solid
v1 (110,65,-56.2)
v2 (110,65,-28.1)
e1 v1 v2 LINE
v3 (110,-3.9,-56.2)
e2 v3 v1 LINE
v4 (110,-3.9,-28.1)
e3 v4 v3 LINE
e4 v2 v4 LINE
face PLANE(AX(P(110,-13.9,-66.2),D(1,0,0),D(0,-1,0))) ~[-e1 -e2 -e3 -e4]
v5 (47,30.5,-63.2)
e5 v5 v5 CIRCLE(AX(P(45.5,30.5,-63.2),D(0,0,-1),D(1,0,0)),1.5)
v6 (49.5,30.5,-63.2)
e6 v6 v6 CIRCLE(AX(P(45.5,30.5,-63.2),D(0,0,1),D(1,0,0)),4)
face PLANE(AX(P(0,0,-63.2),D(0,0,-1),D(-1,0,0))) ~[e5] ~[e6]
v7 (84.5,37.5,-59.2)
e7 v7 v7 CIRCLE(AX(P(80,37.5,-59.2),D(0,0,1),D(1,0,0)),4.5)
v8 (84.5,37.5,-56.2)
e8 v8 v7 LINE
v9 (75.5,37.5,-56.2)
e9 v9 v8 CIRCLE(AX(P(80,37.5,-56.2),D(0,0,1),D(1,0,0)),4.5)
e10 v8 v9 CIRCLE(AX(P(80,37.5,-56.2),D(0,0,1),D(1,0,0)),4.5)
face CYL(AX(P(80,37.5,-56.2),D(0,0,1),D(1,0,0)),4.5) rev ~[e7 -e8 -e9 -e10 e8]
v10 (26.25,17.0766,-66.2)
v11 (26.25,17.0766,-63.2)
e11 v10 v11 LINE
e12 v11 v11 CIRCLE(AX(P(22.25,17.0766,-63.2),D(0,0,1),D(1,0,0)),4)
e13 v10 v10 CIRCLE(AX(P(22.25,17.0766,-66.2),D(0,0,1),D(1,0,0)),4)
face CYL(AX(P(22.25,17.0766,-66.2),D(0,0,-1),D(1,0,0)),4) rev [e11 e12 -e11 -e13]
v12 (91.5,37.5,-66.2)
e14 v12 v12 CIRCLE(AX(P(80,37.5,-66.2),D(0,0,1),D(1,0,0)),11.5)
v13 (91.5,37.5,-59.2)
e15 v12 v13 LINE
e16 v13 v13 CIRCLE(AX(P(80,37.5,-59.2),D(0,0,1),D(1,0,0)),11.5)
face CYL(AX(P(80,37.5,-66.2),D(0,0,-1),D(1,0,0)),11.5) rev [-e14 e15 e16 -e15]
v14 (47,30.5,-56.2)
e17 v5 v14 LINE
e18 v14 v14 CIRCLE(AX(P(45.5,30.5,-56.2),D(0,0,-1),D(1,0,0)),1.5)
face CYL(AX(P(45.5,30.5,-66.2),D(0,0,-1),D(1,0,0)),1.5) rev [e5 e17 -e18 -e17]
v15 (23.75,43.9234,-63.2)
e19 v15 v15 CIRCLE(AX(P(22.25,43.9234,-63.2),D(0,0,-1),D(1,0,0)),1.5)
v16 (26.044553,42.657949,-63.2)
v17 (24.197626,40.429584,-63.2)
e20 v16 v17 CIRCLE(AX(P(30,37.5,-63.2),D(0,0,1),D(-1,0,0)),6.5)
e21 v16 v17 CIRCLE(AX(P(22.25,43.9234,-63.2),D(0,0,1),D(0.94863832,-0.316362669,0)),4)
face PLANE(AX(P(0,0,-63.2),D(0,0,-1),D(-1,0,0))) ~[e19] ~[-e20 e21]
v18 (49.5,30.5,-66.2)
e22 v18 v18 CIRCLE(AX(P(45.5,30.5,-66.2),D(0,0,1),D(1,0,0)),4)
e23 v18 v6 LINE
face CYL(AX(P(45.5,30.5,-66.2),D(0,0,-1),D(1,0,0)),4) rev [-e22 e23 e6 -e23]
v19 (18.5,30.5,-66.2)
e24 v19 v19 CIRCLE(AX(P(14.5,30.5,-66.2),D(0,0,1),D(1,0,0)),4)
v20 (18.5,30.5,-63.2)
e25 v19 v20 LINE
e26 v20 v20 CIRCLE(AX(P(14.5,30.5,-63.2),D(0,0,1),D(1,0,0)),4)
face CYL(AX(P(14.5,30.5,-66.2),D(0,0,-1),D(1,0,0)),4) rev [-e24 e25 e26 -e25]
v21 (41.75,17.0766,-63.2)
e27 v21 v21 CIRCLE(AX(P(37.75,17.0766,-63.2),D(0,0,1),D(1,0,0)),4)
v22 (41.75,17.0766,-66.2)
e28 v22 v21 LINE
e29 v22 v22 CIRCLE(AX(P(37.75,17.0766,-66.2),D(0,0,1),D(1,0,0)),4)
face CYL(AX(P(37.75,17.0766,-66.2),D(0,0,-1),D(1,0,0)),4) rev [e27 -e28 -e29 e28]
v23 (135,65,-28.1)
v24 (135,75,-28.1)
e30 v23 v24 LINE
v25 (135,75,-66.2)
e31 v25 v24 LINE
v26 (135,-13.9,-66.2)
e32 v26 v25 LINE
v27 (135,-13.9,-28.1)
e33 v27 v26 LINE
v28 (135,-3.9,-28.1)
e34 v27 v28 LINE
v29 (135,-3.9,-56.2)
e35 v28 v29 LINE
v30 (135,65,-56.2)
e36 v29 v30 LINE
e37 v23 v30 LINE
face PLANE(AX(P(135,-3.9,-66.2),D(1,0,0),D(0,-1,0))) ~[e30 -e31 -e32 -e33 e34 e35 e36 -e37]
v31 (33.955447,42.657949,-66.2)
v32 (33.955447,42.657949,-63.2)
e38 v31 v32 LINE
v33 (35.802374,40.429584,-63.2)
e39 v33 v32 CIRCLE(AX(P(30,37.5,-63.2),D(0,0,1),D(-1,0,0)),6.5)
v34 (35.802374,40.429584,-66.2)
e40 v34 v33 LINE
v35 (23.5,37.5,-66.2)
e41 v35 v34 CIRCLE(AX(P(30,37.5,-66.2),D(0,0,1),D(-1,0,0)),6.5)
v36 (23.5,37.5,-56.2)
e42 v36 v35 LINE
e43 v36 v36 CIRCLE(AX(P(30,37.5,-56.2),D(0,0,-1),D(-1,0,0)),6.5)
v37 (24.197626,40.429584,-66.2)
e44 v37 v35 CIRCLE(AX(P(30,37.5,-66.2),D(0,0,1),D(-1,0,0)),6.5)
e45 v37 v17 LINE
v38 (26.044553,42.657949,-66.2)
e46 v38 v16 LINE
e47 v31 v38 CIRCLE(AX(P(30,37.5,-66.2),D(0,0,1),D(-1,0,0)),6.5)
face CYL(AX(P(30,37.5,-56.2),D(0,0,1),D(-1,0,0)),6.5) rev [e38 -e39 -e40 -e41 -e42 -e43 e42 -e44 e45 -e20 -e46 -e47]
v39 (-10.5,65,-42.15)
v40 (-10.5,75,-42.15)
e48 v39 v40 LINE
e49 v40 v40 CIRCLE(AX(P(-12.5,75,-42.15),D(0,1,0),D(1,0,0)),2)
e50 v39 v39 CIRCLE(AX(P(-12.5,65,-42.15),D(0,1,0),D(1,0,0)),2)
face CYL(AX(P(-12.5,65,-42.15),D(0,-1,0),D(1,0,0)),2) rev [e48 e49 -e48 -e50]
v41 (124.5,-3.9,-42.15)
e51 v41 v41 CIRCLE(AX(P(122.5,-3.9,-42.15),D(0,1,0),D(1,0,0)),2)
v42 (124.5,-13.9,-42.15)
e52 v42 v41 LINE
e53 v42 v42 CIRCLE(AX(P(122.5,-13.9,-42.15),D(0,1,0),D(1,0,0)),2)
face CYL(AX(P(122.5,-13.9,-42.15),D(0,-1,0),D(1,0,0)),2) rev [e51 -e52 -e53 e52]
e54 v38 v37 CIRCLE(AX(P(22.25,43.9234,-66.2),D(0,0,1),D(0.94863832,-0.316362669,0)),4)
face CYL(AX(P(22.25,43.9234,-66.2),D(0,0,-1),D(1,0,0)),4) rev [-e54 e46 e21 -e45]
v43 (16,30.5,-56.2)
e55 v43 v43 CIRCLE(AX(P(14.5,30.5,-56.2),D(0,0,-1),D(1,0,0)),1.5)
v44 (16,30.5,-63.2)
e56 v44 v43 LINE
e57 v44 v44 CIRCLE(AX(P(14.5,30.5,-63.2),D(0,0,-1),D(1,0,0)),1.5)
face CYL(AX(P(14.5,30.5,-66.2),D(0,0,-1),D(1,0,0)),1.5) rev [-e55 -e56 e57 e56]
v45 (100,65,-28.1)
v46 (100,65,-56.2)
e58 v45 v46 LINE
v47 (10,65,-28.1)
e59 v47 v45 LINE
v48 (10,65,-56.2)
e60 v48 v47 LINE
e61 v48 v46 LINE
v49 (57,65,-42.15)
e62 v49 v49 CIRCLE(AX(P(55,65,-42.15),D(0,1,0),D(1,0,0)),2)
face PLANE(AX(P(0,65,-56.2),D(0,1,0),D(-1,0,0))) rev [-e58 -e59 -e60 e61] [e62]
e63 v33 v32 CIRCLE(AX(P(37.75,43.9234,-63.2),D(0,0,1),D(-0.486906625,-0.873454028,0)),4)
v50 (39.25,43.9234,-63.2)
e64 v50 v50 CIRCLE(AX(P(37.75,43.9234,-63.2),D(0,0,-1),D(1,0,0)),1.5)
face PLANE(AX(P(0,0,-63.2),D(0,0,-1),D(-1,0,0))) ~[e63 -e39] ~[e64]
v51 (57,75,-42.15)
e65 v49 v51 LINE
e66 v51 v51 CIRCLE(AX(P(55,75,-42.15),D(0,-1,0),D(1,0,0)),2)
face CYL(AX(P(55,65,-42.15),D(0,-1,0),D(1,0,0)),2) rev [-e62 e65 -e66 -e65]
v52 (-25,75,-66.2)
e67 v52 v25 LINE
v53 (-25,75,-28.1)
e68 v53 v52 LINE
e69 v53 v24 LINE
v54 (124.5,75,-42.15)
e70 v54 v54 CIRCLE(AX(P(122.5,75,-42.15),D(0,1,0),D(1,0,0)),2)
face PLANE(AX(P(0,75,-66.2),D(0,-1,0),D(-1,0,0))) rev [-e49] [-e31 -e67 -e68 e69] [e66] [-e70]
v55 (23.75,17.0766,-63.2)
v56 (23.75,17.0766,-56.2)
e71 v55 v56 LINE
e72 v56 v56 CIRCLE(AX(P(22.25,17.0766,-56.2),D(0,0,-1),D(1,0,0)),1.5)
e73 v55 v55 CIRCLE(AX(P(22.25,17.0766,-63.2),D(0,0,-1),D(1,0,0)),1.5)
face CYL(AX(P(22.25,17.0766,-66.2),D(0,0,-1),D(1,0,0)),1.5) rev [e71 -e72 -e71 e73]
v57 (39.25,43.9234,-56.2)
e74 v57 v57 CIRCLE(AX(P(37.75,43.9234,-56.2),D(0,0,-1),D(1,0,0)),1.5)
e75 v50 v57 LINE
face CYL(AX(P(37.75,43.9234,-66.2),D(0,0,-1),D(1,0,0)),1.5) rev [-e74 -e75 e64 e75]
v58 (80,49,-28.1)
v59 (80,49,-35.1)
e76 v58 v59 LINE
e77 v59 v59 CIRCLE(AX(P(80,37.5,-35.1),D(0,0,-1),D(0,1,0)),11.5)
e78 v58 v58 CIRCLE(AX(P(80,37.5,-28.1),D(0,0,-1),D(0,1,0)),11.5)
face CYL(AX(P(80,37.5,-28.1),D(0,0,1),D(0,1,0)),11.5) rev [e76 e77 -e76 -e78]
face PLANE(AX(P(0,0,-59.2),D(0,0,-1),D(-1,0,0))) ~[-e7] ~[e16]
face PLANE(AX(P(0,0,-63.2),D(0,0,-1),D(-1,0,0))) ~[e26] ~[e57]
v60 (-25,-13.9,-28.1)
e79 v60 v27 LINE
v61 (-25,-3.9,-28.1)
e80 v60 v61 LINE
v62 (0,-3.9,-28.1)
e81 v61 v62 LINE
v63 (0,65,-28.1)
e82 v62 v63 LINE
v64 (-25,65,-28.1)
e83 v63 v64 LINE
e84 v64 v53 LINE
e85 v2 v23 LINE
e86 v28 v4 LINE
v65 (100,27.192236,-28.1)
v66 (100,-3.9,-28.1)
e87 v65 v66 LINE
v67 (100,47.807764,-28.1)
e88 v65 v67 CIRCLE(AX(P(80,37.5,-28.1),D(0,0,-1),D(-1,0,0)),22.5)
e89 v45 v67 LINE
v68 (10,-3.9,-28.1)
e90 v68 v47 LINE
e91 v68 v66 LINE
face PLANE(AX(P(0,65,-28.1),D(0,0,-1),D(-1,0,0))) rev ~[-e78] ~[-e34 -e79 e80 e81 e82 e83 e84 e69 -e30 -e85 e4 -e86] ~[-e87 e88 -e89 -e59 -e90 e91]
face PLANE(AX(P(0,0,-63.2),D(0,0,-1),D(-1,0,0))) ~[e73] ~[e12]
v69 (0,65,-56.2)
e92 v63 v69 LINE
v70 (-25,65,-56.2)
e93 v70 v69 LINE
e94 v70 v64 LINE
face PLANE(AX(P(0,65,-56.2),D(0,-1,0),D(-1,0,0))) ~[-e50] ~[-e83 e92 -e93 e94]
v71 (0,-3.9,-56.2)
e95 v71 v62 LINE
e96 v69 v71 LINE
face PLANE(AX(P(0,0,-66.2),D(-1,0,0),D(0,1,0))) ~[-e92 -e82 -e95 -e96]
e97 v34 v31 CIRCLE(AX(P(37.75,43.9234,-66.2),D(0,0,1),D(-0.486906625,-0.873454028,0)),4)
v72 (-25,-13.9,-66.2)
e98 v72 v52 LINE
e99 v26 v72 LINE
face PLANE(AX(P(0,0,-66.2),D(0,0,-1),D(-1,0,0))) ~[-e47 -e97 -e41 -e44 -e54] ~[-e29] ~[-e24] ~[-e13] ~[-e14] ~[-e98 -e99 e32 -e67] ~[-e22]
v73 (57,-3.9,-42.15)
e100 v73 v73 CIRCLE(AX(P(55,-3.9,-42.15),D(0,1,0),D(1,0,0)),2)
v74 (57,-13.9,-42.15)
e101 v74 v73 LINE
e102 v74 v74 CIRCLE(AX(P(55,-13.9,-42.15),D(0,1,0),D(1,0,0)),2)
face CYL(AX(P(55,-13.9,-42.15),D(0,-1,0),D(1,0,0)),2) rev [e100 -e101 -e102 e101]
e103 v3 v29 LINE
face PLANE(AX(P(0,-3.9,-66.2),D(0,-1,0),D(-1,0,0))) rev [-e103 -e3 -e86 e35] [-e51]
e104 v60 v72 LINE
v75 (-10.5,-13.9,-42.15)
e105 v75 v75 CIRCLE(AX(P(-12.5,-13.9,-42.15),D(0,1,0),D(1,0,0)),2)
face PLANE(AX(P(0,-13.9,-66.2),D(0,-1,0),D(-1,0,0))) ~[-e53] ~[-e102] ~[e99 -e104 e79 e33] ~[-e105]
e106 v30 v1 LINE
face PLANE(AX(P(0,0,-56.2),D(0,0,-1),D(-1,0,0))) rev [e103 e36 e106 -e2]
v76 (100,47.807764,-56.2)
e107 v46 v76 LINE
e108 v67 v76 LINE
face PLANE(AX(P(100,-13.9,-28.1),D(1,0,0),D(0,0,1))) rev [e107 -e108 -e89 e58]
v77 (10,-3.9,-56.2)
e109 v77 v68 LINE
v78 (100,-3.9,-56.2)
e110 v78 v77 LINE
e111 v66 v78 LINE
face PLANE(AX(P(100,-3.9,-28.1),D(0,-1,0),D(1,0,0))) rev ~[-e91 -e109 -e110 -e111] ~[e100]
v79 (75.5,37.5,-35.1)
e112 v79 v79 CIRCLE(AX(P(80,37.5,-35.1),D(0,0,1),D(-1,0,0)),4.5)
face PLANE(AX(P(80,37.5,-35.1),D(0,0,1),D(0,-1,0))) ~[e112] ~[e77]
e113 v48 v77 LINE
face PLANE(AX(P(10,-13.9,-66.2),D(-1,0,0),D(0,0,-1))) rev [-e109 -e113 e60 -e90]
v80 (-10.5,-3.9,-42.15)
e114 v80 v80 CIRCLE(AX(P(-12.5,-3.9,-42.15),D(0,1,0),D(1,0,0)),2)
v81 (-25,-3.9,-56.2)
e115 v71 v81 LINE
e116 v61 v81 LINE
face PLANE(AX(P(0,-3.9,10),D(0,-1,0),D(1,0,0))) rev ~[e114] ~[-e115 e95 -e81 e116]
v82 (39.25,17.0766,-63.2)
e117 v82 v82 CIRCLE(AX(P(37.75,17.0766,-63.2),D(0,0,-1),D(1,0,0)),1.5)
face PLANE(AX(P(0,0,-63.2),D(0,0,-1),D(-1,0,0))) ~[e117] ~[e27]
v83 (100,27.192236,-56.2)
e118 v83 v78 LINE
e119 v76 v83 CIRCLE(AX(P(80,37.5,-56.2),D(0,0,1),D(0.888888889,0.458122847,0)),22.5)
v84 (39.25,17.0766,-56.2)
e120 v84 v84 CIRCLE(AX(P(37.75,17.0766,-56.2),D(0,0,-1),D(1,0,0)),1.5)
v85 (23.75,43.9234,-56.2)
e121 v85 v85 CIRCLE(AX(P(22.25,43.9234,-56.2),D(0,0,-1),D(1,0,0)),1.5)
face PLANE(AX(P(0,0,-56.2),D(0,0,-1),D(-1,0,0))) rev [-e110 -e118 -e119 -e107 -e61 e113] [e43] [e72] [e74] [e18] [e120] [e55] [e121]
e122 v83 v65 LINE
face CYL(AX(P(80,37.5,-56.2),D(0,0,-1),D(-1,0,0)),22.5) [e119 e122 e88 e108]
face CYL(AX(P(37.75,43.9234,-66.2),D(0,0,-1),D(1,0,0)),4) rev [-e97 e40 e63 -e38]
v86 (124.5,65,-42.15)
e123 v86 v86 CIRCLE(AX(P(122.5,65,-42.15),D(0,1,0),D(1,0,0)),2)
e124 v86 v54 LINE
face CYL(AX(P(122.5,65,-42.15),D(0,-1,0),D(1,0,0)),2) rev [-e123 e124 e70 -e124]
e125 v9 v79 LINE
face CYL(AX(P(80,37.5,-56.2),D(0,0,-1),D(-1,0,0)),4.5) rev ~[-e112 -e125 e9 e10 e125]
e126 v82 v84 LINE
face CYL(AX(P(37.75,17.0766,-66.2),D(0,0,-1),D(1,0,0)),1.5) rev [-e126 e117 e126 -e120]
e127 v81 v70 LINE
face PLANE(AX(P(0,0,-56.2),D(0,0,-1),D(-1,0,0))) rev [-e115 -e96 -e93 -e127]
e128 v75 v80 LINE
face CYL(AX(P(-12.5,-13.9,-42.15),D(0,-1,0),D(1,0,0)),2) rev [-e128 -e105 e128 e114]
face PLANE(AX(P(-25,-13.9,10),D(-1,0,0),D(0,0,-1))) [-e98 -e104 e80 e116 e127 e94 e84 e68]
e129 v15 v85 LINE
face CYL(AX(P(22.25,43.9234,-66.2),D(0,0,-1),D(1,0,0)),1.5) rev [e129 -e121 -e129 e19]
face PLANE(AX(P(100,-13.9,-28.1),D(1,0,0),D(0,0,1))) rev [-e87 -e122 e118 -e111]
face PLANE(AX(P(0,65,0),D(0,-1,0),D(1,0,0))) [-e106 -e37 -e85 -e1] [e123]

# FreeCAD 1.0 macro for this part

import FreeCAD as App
import Part
import Sketcher

V = App.Vector

doc = App.newDocument("Part")
params = doc.addObject("Spreadsheet::Sheet", "Params")
for row, (alias, value) in enumerate([
    ("sketch1_diameter", "8 mm"),
    ("sketch1_diameter2", "9 mm"),
    ("sketch1_width", "110 mm"),
    ("sketch1_height", "75 mm"),
    ("pad1_length", "10 mm"),
    ("sketch2_height", "38.1 mm"),
    ("sketch2_width", "110 mm"),
    ("pad2_length", "10 mm"),
    ("sketch3_width", "65 mm"),
    ("sketch3_height", "28.1 mm"),
    ("pad3_length", "10 mm"),
    ("sketch4_width", "65 mm"),
    ("sketch4_height", "28.1 mm"),
    ("pad4_length", "10 mm"),
    ("sketch5_diameter", "4 mm"),
    ("sketch5_width", "25 mm"),
    ("sketch5_height", "28.1 mm"),
    ("pad5_length", "10 mm"),
    ("sketch6_width", "25 mm"),
    ("sketch6_height", "10 mm"),
    ("pad6_length", "10 mm"),
    ("sketch7_diameter", "4 mm"),
    ("sketch8_diameter", "3 mm"),
    ("sketch9_diameter", "13 mm"),
    ("sketch9_diameter2", "8 mm"),
    ("sketch10_diameter", "8 mm"),
    ("pocket4_length", "3 mm"),
    ("sketch11_width", "110 mm"),
    ("sketch11_height", "13.9 mm"),
    ("pad7_length", "10 mm"),
    ("sketch12_width", "10 mm"),
    ("sketch12_height", "38.1 mm"),
    ("pad8_length", "88.9 mm"),
    ("sketch13_width", "110 mm"),
    ("sketch13_height", "38.1 mm"),
    ("pad9_length", "10 mm"),
    ("sketch14_diameter", "4 mm"),
    ("sketch14_width", "25 mm"),
    ("sketch14_height", "38.1 mm"),
    ("pad10_length", "10 mm"),
    ("sketch15_diameter", "4 mm"),
    ("pocket5_length", "10 mm"),
    ("sketch16_width", "25 mm"),
    ("sketch16_height", "68.9 mm"),
    ("pad11_length", "10 mm"),
    ("sketch17_diameter", "45 mm"),
    ("sketch17_diameter2", "9 mm"),
    ("pad12_length", "28.1 mm"),
    ("sketch18_diameter", "23 mm"),
    ("sketch18_diameter2", "9 mm"),
    ("pocket6_length", "7 mm"),
    ("sketch19_diameter", "23 mm"),
    ("sketch19_diameter2", "9 mm"),
    ("pocket7_length", "7 mm"),
    ("sketch20_width", "160 mm"),
    ("sketch20_height", "88.9 mm"),
], start=1):
    params.set(f"A{row}", alias)
    params.set(f"B{row}", "=" + value)
    params.setAlias(f"B{row}", alias)

body = doc.addObject("PartDesign::Body", "Body")

sketch1 = body.newObject("Sketcher::SketchObject", "Sketch")
sketch1.AttachmentSupport = (doc.getObject("XY_Plane"), [""])
sketch1.MapMode = "FlatFace"
sketch1.addGeometry([
    Part.LineSegment(V(0, 75, 0), V(0, 0, 0)),
    Part.LineSegment(V(0, 0, 0), V(110, 0, 0)),
    Part.LineSegment(V(110, 0, 0), V(110, 75, 0)),
    Part.LineSegment(V(110, 75, 0), V(0, 75, 0)),
    Part.Circle(V(30, 37.5, 0), V(0, 0, 1), 4),
    Part.Circle(V(80, 37.5, 0), V(0, 0, 1), 4.5),
], False)
sketch1.addConstraint([
    Sketcher.Constraint("Coincident", 0, 2, 1, 1),
    Sketcher.Constraint("Coincident", 1, 2, 2, 1),
    Sketcher.Constraint("Coincident", 2, 2, 3, 1),
    Sketcher.Constraint("Coincident", 3, 2, 0, 1),
    Sketcher.Constraint("Vertical", 0),
    Sketcher.Constraint("Horizontal", 1),
    Sketcher.Constraint("Vertical", 2),
    Sketcher.Constraint("Horizontal", 3),
    Sketcher.Constraint("Coincident", 0, 2, -1, 1),
    Sketcher.Constraint("Horizontal", 4, 3, 5, 3),
    Sketcher.Constraint("Diameter", 4, 8.0),
    Sketcher.Constraint("Diameter", 5, 9.0),
    Sketcher.Constraint("DistanceX", 1, 1, 1, 2, 110.0),
    Sketcher.Constraint("DistanceY", 0, 2, 0, 1, 75.0),
    Sketcher.Constraint("DistanceX", -1, 1, 4, 3, 30.0),
    Sketcher.Constraint("DistanceX", 4, 3, 5, 3, 50.0),
    Sketcher.Constraint("DistanceY", -1, 1, 4, 3, 37.5),
])
sketch1.setExpression("Constraints[10]", "Params.sketch1_diameter")
sketch1.setExpression("Constraints[11]", "Params.sketch1_diameter2")
sketch1.setExpression("Constraints[12]", "Params.sketch1_width")
sketch1.setExpression("Constraints[13]", "Params.sketch1_height")
pad1 = body.newObject("PartDesign::Pad", "Pad")
pad1.Profile = sketch1
pad1.setExpression("Length", "Params.pad1_length")

sketch2 = body.newObject("Sketcher::SketchObject", "Sketch001")
sketch2.AttachmentSupport = (doc.getObject("XZ_Plane"), [""])
sketch2.MapMode = "FlatFace"
sketch2.AttachmentOffset = App.Placement(V(0, 0, -75), App.Rotation())
sketch2.addGeometry([
    Part.LineSegment(V(0, 10, 0), V(110, 10, 0)),
    Part.LineSegment(V(110, 10, 0), V(110, -28.1, 0)),
    Part.LineSegment(V(110, -28.1, 0), V(0, -28.1, 0)),
    Part.LineSegment(V(0, -28.1, 0), V(0, 10, 0)),
], False)
sketch2.addConstraint([
    Sketcher.Constraint("Coincident", 0, 2, 1, 1),
    Sketcher.Constraint("Coincident", 1, 2, 2, 1),
    Sketcher.Constraint("Coincident", 2, 2, 3, 1),
    Sketcher.Constraint("Coincident", 3, 2, 0, 1),
    Sketcher.Constraint("Horizontal", 0),
    Sketcher.Constraint("Vertical", 1),
    Sketcher.Constraint("Horizontal", 2),
    Sketcher.Constraint("Vertical", 3),
    Sketcher.Constraint("PointOnObject", 2, 2, -2),
    Sketcher.Constraint("DistanceY", 1, 2, 1, 1, 38.1),
    Sketcher.Constraint("DistanceX", 0, 1, 0, 2, 110.0),
    Sketcher.Constraint("DistanceY", -1, 1, 0, 2, 10.0),
])
sketch2.setExpression("Constraints[9]", "Params.sketch2_height")
sketch2.setExpression("Constraints[10]", "Params.sketch2_width")
pad2 = body.newObject("PartDesign::Pad", "Pad001")
pad2.Profile = sketch2
pad2.setExpression("Length", "Params.pad2_length")

sketch3 = body.newObject("Sketcher::SketchObject", "Sketch002")
sketch3.AttachmentSupport = (doc.getObject("YZ_Plane"), [""])
sketch3.MapMode = "FlatFace"
sketch3.AttachmentOffset = App.Placement(V(0, 0, 110), App.Rotation())
sketch3.addGeometry([
    Part.LineSegment(V(0, 0, 0), V(65, -28.1, 0)),
    Part.LineSegment(V(65, -28.1, 0), V(65, 0, 0)),
    Part.LineSegment(V(65, 0, 0), V(0, 0, 0)),
], False)
sketch3.addConstraint([
    Sketcher.Constraint("Coincident", 0, 2, 1, 1),
    Sketcher.Constraint("Coincident", 1, 2, 2, 1),
    Sketcher.Constraint("Coincident", 2, 2, 0, 1),
    Sketcher.Constraint("Vertical", 1),
    Sketcher.Constraint("Horizontal", 2),
    Sketcher.Constraint("Coincident", 2, 2, -1, 1),
    Sketcher.Constraint("DistanceX", 2, 2, 2, 1, 65.0),
    Sketcher.Constraint("DistanceY", 1, 1, 1, 2, 28.1),
])
sketch3.setExpression("Constraints[6]", "Params.sketch3_width")
sketch3.setExpression("Constraints[7]", "Params.sketch3_height")
pad3 = body.newObject("PartDesign::Pad", "Pad002")
pad3.Profile = sketch3
pad3.setExpression("Length", "Params.pad3_length")
pad3.Reversed = True

sketch4 = body.newObject("Sketcher::SketchObject", "Sketch003")
sketch4.AttachmentSupport = (doc.getObject("YZ_Plane"), [""])
sketch4.MapMode = "FlatFace"
sketch4.addGeometry([
    Part.LineSegment(V(0, 0, 0), V(65, 0, 0)),
    Part.LineSegment(V(65, 0, 0), V(65, -28.1, 0)),
    Part.LineSegment(V(65, -28.1, 0), V(0, 0, 0)),
], False)
sketch4.addConstraint([
    Sketcher.Constraint("Coincident", 0, 2, 1, 1),
    Sketcher.Constraint("Coincident", 1, 2, 2, 1),
    Sketcher.Constraint("Coincident", 2, 2, 0, 1),
    Sketcher.Constraint("Horizontal", 0),
    Sketcher.Constraint("Vertical", 1),
    Sketcher.Constraint("Coincident", 2, 2, -1, 1),
    Sketcher.Constraint("DistanceX", 0, 1, 0, 2, 65.0),
    Sketcher.Constraint("DistanceY", 1, 2, 1, 1, 28.1),
])
sketch4.setExpression("Constraints[6]", "Params.sketch4_width")
sketch4.setExpression("Constraints[7]", "Params.sketch4_height")
pad4 = body.newObject("PartDesign::Pad", "Pad003")
pad4.Profile = sketch4
pad4.setExpression("Length", "Params.pad4_length")

sketch5 = body.newObject("Sketcher::SketchObject", "Sketch004")
sketch5.AttachmentSupport = (doc.getObject("XZ_Plane"), [""])
sketch5.MapMode = "FlatFace"
sketch5.AttachmentOffset = App.Placement(V(0, 0, -65), App.Rotation())
sketch5.addGeometry([
    Part.LineSegment(V(110, 0, 0), V(110, -28.1, 0)),
    Part.LineSegment(V(110, -28.1, 0), V(135, -28.1, 0)),
    Part.LineSegment(V(135, -28.1, 0), V(135, 0, 0)),
    Part.LineSegment(V(135, 0, 0), V(110, 0, 0)),
    Part.Circle(V(122.5, -14.05, 0), V(0, 0, 1), 2),
    Part.LineSegment(V(0, -28.1, 0), V(0, 0, 0)),
    Part.LineSegment(V(0, 0, 0), V(-25, 0, 0)),
    Part.LineSegment(V(-25, 0, 0), V(-25, -28.1, 0)),
    Part.LineSegment(V(-25, -28.1, 0), V(0, -28.1, 0)),
    Part.Circle(V(-12.5, -14.05, 0), V(0, 0, 1), 2),
], False)
sketch5.addConstraint([
    Sketcher.Constraint("Coincident", 0, 2, 1, 1),
    Sketcher.Constraint("Coincident", 1, 2, 2, 1),
    Sketcher.Constraint("Coincident", 2, 2, 3, 1),
    Sketcher.Constraint("Coincident", 3, 2, 0, 1),
    Sketcher.Constraint("Coincident", 5, 2, 6, 1),
    Sketcher.Constraint("Coincident", 6, 2, 7, 1),
    Sketcher.Constraint("Coincident", 7, 2, 8, 1),
    Sketcher.Constraint("Coincident", 8, 2, 5, 1),
    Sketcher.Constraint("Vertical", 0),
    Sketcher.Constraint("Horizontal", 1),
    Sketcher.Constraint("Vertical", 2),
    Sketcher.Constraint("Horizontal", 3),
    Sketcher.Constraint("Vertical", 5),
    Sketcher.Constraint("Horizontal", 6),
    Sketcher.Constraint("Vertical", 7),
    Sketcher.Constraint("Horizontal", 8),
    Sketcher.Constraint("Coincident", 5, 2, -1, 1),
    Sketcher.Constraint("Equal", 4, 9),
    Sketcher.Constraint("PointOnObject", 2, 2, -1),
    Sketcher.Constraint("Horizontal", 4, 3, 9, 3),
    Sketcher.Constraint("Horizontal", 1, 2, 7, 2),
    Sketcher.Constraint("Equal", 3, 6),
    Sketcher.Constraint("Diameter", 4, 4.0),
    Sketcher.Constraint("DistanceX", 1, 1, 1, 2, 25.0),
    Sketcher.Constraint("DistanceY", 0, 2, 0, 1, 28.1),
    Sketcher.Constraint("DistanceX", -1, 1, 0, 2, 110.0),
    Sketcher.Constraint("DistanceX", 9, 3, 4, 3, 135.0),
    Sketcher.Constraint("DistanceX", -1, 1, 4, 3, 122.5),
    Sketcher.Constraint("DistanceY", 4, 3, -1, 1, 14.05),
])
sketch5.setExpression("Constraints[22]", "Params.sketch5_diameter")
sketch5.setExpression("Constraints[23]", "Params.sketch5_width")
sketch5.setExpression("Constraints[24]", "Params.sketch5_height")
pad5 = body.newObject("PartDesign::Pad", "Pad004")
pad5.Profile = sketch5
pad5.setExpression("Length", "Params.pad5_length")
pad5.Reversed = True

sketch6 = body.newObject("Sketcher::SketchObject", "Sketch005")
sketch6.AttachmentSupport = (doc.getObject("XZ_Plane"), [""])
sketch6.MapMode = "FlatFace"
sketch6.AttachmentOffset = App.Placement(V(0, 0, -65), App.Rotation())
sketch6.addGeometry([
    Part.LineSegment(V(110, 10, 0), V(110, 0, 0)),
    Part.LineSegment(V(110, 0, 0), V(135, 0, 0)),
    Part.LineSegment(V(135, 0, 0), V(135, 10, 0)),
    Part.LineSegment(V(135, 10, 0), V(110, 10, 0)),
    Part.LineSegment(V(-25, 0, 0), V(0, 0, 0)),
    Part.LineSegment(V(0, 0, 0), V(0, 10, 0)),
    Part.LineSegment(V(0, 10, 0), V(-25, 10, 0)),
    Part.LineSegment(V(-25, 10, 0), V(-25, 0, 0)),
], False)
sketch6.addConstraint([
    Sketcher.Constraint("Coincident", 0, 2, 1, 1),
    Sketcher.Constraint("Coincident", 1, 2, 2, 1),
    Sketcher.Constraint("Coincident", 2, 2, 3, 1),
    Sketcher.Constraint("Coincident", 3, 2, 0, 1),
    Sketcher.Constraint("Coincident", 4, 2, 5, 1),
    Sketcher.Constraint("Coincident", 5, 2, 6, 1),
    Sketcher.Constraint("Coincident", 6, 2, 7, 1),
    Sketcher.Constraint("Coincident", 7, 2, 4, 1),
    Sketcher.Constraint("Vertical", 0),
    Sketcher.Constraint("Horizontal", 1),
    Sketcher.Constraint("Vertical", 2),
    Sketcher.Constraint("Horizontal", 3),
    Sketcher.Constraint("Horizontal", 4),
    Sketcher.Constraint("Vertical", 5),
    Sketcher.Constraint("Horizontal", 6),
    Sketcher.Constraint("Vertical", 7),
    Sketcher.Constraint("Coincident", 4, 2, -1, 1),
    Sketcher.Constraint("PointOnObject", 0, 2, -1),
    Sketcher.Constraint("Horizontal", 3, 2, 5, 2),
    Sketcher.Constraint("Equal", 3, 4),
    Sketcher.Constraint("DistanceX", 1, 1, 1, 2, 25.0),
    Sketcher.Constraint("DistanceY", 0, 2, 0, 1, 10.0),
    Sketcher.Constraint("DistanceX", -1, 1, 0, 2, 110.0),
])
sketch6.setExpression("Constraints[20]", "Params.sketch6_width")
sketch6.setExpression("Constraints[21]", "Params.sketch6_height")
pad6 = body.newObject("PartDesign::Pad", "Pad005")
pad6.Profile = sketch6
pad6.setExpression("Length", "Params.pad6_length")
pad6.Reversed = True

sketch7 = body.newObject("Sketcher::SketchObject", "Sketch006")
sketch7.AttachmentSupport = (doc.getObject("XZ_Plane"), [""])
sketch7.MapMode = "FlatFace"
sketch7.AttachmentOffset = App.Placement(V(0, 0, -65), App.Rotation())
sketch7.addGeometry(Part.Circle(V(55, -14.05, 0), V(0, 0, 1), 2), False)
sketch7.addConstraint([
    Sketcher.Constraint("Diameter", 0, 4.0),
    Sketcher.Constraint("DistanceX", -1, 1, 0, 3, 55.0),
    Sketcher.Constraint("DistanceY", 0, 3, -1, 1, 14.05),
])
sketch7.setExpression("Constraints[0]", "Params.sketch7_diameter")
pocket1 = body.newObject("PartDesign::Pocket", "Pocket")
pocket1.Profile = sketch7
pocket1.Type = "ThroughAll"

sketch8 = body.newObject("Sketcher::SketchObject", "Sketch007")
sketch8.AttachmentSupport = (doc.getObject("XY_Plane"), [""])
sketch8.MapMode = "FlatFace"
sketch8.AttachmentOffset = App.Placement(V(0, 0, 10), App.Rotation())
sketch8.addGeometry([
    Part.Circle(V(45.5, 30.5, 0), V(0, 0, 1), 1.5),
    Part.Circle(V(37.75, 43.9234, 0), V(0, 0, 1), 1.5),
    Part.Circle(V(22.25, 43.9234, 0), V(0, 0, 1), 1.5),
    Part.Circle(V(14.5, 30.5, 0), V(0, 0, 1), 1.5),
    Part.Circle(V(22.25, 17.0766, 0), V(0, 0, 1), 1.5),
    Part.Circle(V(37.75, 17.0766, 0), V(0, 0, 1), 1.5),
], False)
sketch8.addConstraint([
    Sketcher.Constraint("Equal", 0, 1),
    Sketcher.Constraint("Equal", 1, 2),
    Sketcher.Constraint("Equal", 2, 3),
    Sketcher.Constraint("Equal", 3, 4),
    Sketcher.Constraint("Equal", 4, 5),
    Sketcher.Constraint("Horizontal", 1, 3, 2, 3),
    Sketcher.Constraint("Horizontal", 0, 3, 3, 3),
    Sketcher.Constraint("Horizontal", 4, 3, 5, 3),
    Sketcher.Constraint("Vertical", 2, 3, 4, 3),
    Sketcher.Constraint("Vertical", 1, 3, 5, 3),
    Sketcher.Constraint("Diameter", 0, 3.0),
    Sketcher.Constraint("DistanceX", 2, 3, 1, 3, 15.5),
    Sketcher.Constraint("DistanceX", 3, 3, 0, 3, 31.0),
    Sketcher.Constraint("DistanceX", -1, 1, 0, 3, 45.5),
    Sketcher.Constraint("DistanceY", -1, 1, 0, 3, 30.5),
    Sketcher.Constraint("DistanceX", -1, 1, 1, 3, 37.75),
    Sketcher.Constraint("DistanceY", -1, 1, 1, 3, 43.9234),
    Sketcher.Constraint("DistanceY", -1, 1, 4, 3, 17.0766),
])
sketch8.setExpression("Constraints[10]", "Params.sketch8_diameter")
pocket2 = body.newObject("PartDesign::Pocket", "Pocket001")
pocket2.Profile = sketch8
pocket2.Type = "ThroughAll"

sketch9 = body.newObject("Sketcher::SketchObject", "Sketch008")
sketch9.AttachmentSupport = (doc.getObject("XY_Plane"), [""])
sketch9.MapMode = "FlatFace"
sketch9.addGeometry([
    Part.Circle(V(30, 37.5, 0), V(0, 0, 1), 6.5),
    Part.Circle(V(30, 37.5, 0), V(0, 0, 1), 4),
], False)
sketch9.addConstraint([
    Sketcher.Constraint("Coincident", 1, 3, 0, 3),
    Sketcher.Constraint("Diameter", 0, 13.0),
    Sketcher.Constraint("Diameter", 1, 8.0),
    Sketcher.Constraint("DistanceX", -1, 1, 0, 3, 30.0),
    Sketcher.Constraint("DistanceY", -1, 1, 0, 3, 37.5),
])
sketch9.setExpression("Constraints[1]", "Params.sketch9_diameter")
sketch9.setExpression("Constraints[2]", "Params.sketch9_diameter2")
pocket3 = body.newObject("PartDesign::Pocket", "Pocket002")
pocket3.Profile = sketch9
pocket3.Type = "ThroughAll"
pocket3.Reversed = True

sketch10 = body.newObject("Sketcher::SketchObject", "Sketch009")
sketch10.AttachmentSupport = (doc.getObject("XY_Plane"), [""])
sketch10.MapMode = "FlatFace"
sketch10.AttachmentOffset = App.Placement(V(0, 0, 10), App.Rotation())
sketch10.addGeometry([
    Part.Circle(V(45.5, 30.5, 0), V(0, 0, 1), 4),
    Part.Circle(V(14.5, 30.5, 0), V(0, 0, 1), 4),
    Part.Circle(V(22.25, 43.9234, 0), V(0, 0, 1), 4),
    Part.Circle(V(37.75, 43.9234, 0), V(0, 0, 1), 4),
    Part.Circle(V(37.75, 17.0766, 0), V(0, 0, 1), 4),
    Part.Circle(V(22.25, 17.0766, 0), V(0, 0, 1), 4),
], False)
sketch10.addConstraint([
    Sketcher.Constraint("Equal", 0, 1),
    Sketcher.Constraint("Equal", 1, 2),
    Sketcher.Constraint("Equal", 2, 3),
    Sketcher.Constraint("Equal", 3, 4),
    Sketcher.Constraint("Equal", 4, 5),
    Sketcher.Constraint("Horizontal", 0, 3, 1, 3),
    Sketcher.Constraint("Horizontal", 2, 3, 3, 3),
    Sketcher.Constraint("Horizontal", 4, 3, 5, 3),
    Sketcher.Constraint("Vertical", 3, 3, 4, 3),
    Sketcher.Constraint("Vertical", 2, 3, 5, 3),
    Sketcher.Constraint("Diameter", 0, 8.0),
    Sketcher.Constraint("DistanceX", 1, 3, 0, 3, 31.0),
    Sketcher.Constraint("DistanceX", -1, 1, 0, 3, 45.5),
    Sketcher.Constraint("DistanceY", -1, 1, 0, 3, 30.5),
    Sketcher.Constraint("DistanceX", 2, 3, 3, 3, 15.5),
    Sketcher.Constraint("DistanceX", -1, 1, 2, 3, 22.25),
    Sketcher.Constraint("DistanceY", -1, 1, 2, 3, 43.9234),
    Sketcher.Constraint("DistanceY", -1, 1, 4, 3, 17.0766),
])
sketch10.setExpression("Constraints[10]", "Params.sketch10_diameter")
pocket4 = body.newObject("PartDesign::Pocket", "Pocket003")
pocket4.Profile = sketch10
pocket4.setExpression("Length", "Params.pocket4_length")

sketch11 = body.newObject("Sketcher::SketchObject", "Sketch010")
sketch11.AttachmentSupport = (doc.getObject("XY_Plane"), [""])
sketch11.MapMode = "FlatFace"
sketch11.AttachmentOffset = App.Placement(V(0, 0, 10), App.Rotation())
sketch11.addGeometry([
    Part.LineSegment(V(110, -13.9, 0), V(110, 0, 0)),
    Part.LineSegment(V(110, 0, 0), V(0, 0, 0)),
    Part.LineSegment(V(0, 0, 0), V(0, -13.9, 0)),
    Part.LineSegment(V(0, -13.9, 0), V(110, -13.9, 0)),
], False)
sketch11.addConstraint([
    Sketcher.Constraint("Coincident", 0, 2, 1, 1),
    Sketcher.Constraint("Coincident", 1, 2, 2, 1),
    Sketcher.Constraint("Coincident", 2, 2, 3, 1),
    Sketcher.Constraint("Coincident", 3, 2, 0, 1),
    Sketcher.Constraint("Vertical", 0),
    Sketcher.Constraint("Horizontal", 1),
    Sketcher.Constraint("Vertical", 2),
    Sketcher.Constraint("Horizontal", 3),
    Sketcher.Constraint("Coincident", 1, 2, -1, 1),
    Sketcher.Constraint("DistanceX", 1, 2, 1, 1, 110.0),
    Sketcher.Constraint("DistanceY", 0, 1, 0, 2, 13.9),
])
sketch11.setExpression("Constraints[9]", "Params.sketch11_width")
sketch11.setExpression("Constraints[10]", "Params.sketch11_height")
pad7 = body.newObject("PartDesign::Pad", "Pad006")
pad7.Profile = sketch11
pad7.setExpression("Length", "Params.pad7_length")
pad7.Reversed = True

sketch12 = body.newObject("Sketcher::SketchObject", "Sketch011")
sketch12.AttachmentSupport = (doc.getObject("XZ_Plane"), [""])
sketch12.MapMode = "FlatFace"
sketch12.AttachmentOffset = App.Placement(V(0, 0, 13.9), App.Rotation())
sketch12.addGeometry([
    Part.LineSegment(V(10, 10, 0), V(0, 10, 0)),
    Part.LineSegment(V(0, 10, 0), V(0, -28.1, 0)),
    Part.LineSegment(V(0, -28.1, 0), V(10, -28.1, 0)),
    Part.LineSegment(V(10, -28.1, 0), V(10, 10, 0)),
    Part.LineSegment(V(100, 10, 0), V(100, -28.1, 0)),
    Part.LineSegment(V(100, -28.1, 0), V(110, -28.1, 0)),
    Part.LineSegment(V(110, -28.1, 0), V(110, 10, 0)),
    Part.LineSegment(V(110, 10, 0), V(100, 10, 0)),
], False)
sketch12.addConstraint([
    Sketcher.Constraint("Coincident", 0, 2, 1, 1),
    Sketcher.Constraint("Coincident", 1, 2, 2, 1),
    Sketcher.Constraint("Coincident", 2, 2, 3, 1),
    Sketcher.Constraint("Coincident", 3, 2, 0, 1),
    Sketcher.Constraint("Coincident", 4, 2, 5, 1),
    Sketcher.Constraint("Coincident", 5, 2, 6, 1),
    Sketcher.Constraint("Coincident", 6, 2, 7, 1),
    Sketcher.Constraint("Coincident", 7, 2, 4, 1),
    Sketcher.Constraint("Horizontal", 0),
    Sketcher.Constraint("Vertical", 1),
    Sketcher.Constraint("Horizontal", 2),
    Sketcher.Constraint("Vertical", 3),
    Sketcher.Constraint("Vertical", 4),
    Sketcher.Constraint("Horizontal", 5),
    Sketcher.Constraint("Vertical", 6),
    Sketcher.Constraint("Horizontal", 7),
    Sketcher.Constraint("PointOnObject", 0, 2, -2),
    Sketcher.Constraint("Horizontal", 2, 2, 4, 2),
    Sketcher.Constraint("Horizontal", 3, 2, 6, 2),
    Sketcher.Constraint("Equal", 2, 5),
    Sketcher.Constraint("DistanceX", 0, 2, 0, 1, 10.0),
    Sketcher.Constraint("DistanceY", 1, 2, 1, 1, 38.1),
    Sketcher.Constraint("DistanceY", -1, 1, 0, 2, 10.0),
    Sketcher.Constraint("DistanceX", -1, 1, 4, 2, 100.0),
])
sketch12.setExpression("Constraints[20]", "Params.sketch12_width")
sketch12.setExpression("Constraints[21]", "Params.sketch12_height")
pad8 = body.newObject("PartDesign::Pad", "Pad007")
pad8.Profile = sketch12
pad8.setExpression("Length", "Params.pad8_length")
pad8.Reversed = True

sketch13 = body.newObject("Sketcher::SketchObject", "Sketch012")
sketch13.AttachmentSupport = (doc.getObject("XZ_Plane"), [""])
sketch13.MapMode = "FlatFace"
sketch13.AttachmentOffset = App.Placement(V(0, 0, 13.9), App.Rotation())
sketch13.addGeometry([
    Part.LineSegment(V(0, -28.1, 0), V(110, -28.1, 0)),
    Part.LineSegment(V(110, -28.1, 0), V(110, 10, 0)),
    Part.LineSegment(V(110, 10, 0), V(0, 10, 0)),
    Part.LineSegment(V(0, 10, 0), V(0, -28.1, 0)),
], False)
sketch13.addConstraint([
    Sketcher.Constraint("Coincident", 0, 2, 1, 1),
    Sketcher.Constraint("Coincident", 1, 2, 2, 1),
    Sketcher.Constraint("Coincident", 2, 2, 3, 1),
    Sketcher.Constraint("Coincident", 3, 2, 0, 1),
    Sketcher.Constraint("Horizontal", 0),
    Sketcher.Constraint("Vertical", 1),
    Sketcher.Constraint("Horizontal", 2),
    Sketcher.Constraint("Vertical", 3),
    Sketcher.Constraint("PointOnObject", 2, 2, -2),
    Sketcher.Constraint("DistanceX", 0, 1, 0, 2, 110.0),
    Sketcher.Constraint("DistanceY", 1, 1, 1, 2, 38.1),
    Sketcher.Constraint("DistanceY", -1, 1, 1, 2, 10.0),
])
sketch13.setExpression("Constraints[9]", "Params.sketch13_width")
sketch13.setExpression("Constraints[10]", "Params.sketch13_height")
pad9 = body.newObject("PartDesign::Pad", "Pad008")
pad9.Profile = sketch13
pad9.setExpression("Length", "Params.pad9_length")
pad9.Reversed = True

sketch14 = body.newObject("Sketcher::SketchObject", "Sketch013")
sketch14.AttachmentSupport = (doc.getObject("XZ_Plane"), [""])
sketch14.MapMode = "FlatFace"
sketch14.AttachmentOffset = App.Placement(V(0, 0, 13.9), App.Rotation())
sketch14.addGeometry([
    Part.LineSegment(V(-25, -28.1, 0), V(0, -28.1, 0)),
    Part.LineSegment(V(0, -28.1, 0), V(0, 10, 0)),
    Part.LineSegment(V(0, 10, 0), V(-25, 10, 0)),
    Part.LineSegment(V(-25, 10, 0), V(-25, -28.1, 0)),
    Part.Circle(V(-12.5, -14.05, 0), V(0, 0, 1), 2),
    Part.LineSegment(V(110, 10, 0), V(110, -28.1, 0)),
    Part.LineSegment(V(110, -28.1, 0), V(135, -28.1, 0)),
    Part.LineSegment(V(135, -28.1, 0), V(135, 10, 0)),
    Part.LineSegment(V(135, 10, 0), V(110, 10, 0)),
    Part.Circle(V(122.5, -14.05, 0), V(0, 0, 1), 2),
], False)
sketch14.addConstraint([
    Sketcher.Constraint("Coincident", 0, 2, 1, 1),
    Sketcher.Constraint("Coincident", 1, 2, 2, 1),
    Sketcher.Constraint("Coincident", 2, 2, 3, 1),
    Sketcher.Constraint("Coincident", 3, 2, 0, 1),
    Sketcher.Constraint("Coincident", 5, 2, 6, 1),
    Sketcher.Constraint("Coincident", 6, 2, 7, 1),
    Sketcher.Constraint("Coincident", 7, 2, 8, 1),
    Sketcher.Constraint("Coincident", 8, 2, 5, 1),
    Sketcher.Constraint("Horizontal", 0),
    Sketcher.Constraint("Vertical", 1),
    Sketcher.Constraint("Horizontal", 2),
    Sketcher.Constraint("Vertical", 3),
    Sketcher.Constraint("Vertical", 5),
    Sketcher.Constraint("Horizontal", 6),
    Sketcher.Constraint("Vertical", 7),
    Sketcher.Constraint("Horizontal", 8),
    Sketcher.Constraint("Equal", 4, 9),
    Sketcher.Constraint("PointOnObject", 0, 2, -2),
    Sketcher.Constraint("Horizontal", 4, 3, 9, 3),
    Sketcher.Constraint("Horizontal", 3, 2, 5, 2),
    Sketcher.Constraint("Horizontal", 2, 2, 7, 2),
    Sketcher.Constraint("Equal", 2, 6),
    Sketcher.Constraint("Diameter", 4, 4.0),
    Sketcher.Constraint("DistanceX", 0, 1, 0, 2, 25.0),
    Sketcher.Constraint("DistanceY", 1, 1, 1, 2, 38.1),
    Sketcher.Constraint("DistanceY", -1, 1, 1, 2, 10.0),
    Sketcher.Constraint("DistanceX", -1, 1, 5, 2, 110.0),
    Sketcher.Constraint("DistanceX", 4, 3, 9, 3, 135.0),
    Sketcher.Constraint("DistanceX", 4, 3, -1, 1, 12.5),
    Sketcher.Constraint("DistanceY", 4, 3, -1, 1, 14.05),
])
sketch14.setExpression("Constraints[22]", "Params.sketch14_diameter")
sketch14.setExpression("Constraints[23]", "Params.sketch14_width")
sketch14.setExpression("Constraints[24]", "Params.sketch14_height")
pad10 = body.newObject("PartDesign::Pad", "Pad009")
pad10.Profile = sketch14
pad10.setExpression("Length", "Params.pad10_length")
pad10.Reversed = True

sketch15 = body.newObject("Sketcher::SketchObject", "Sketch014")
sketch15.AttachmentSupport = (doc.getObject("XZ_Plane"), [""])
sketch15.MapMode = "FlatFace"
sketch15.AttachmentOffset = App.Placement(V(0, 0, 13.9), App.Rotation())
sketch15.addGeometry(Part.Circle(V(55, -14.05, 0), V(0, 0, 1), 2), False)
sketch15.addConstraint([
    Sketcher.Constraint("Diameter", 0, 4.0),
    Sketcher.Constraint("DistanceX", -1, 1, 0, 3, 55.0),
    Sketcher.Constraint("DistanceY", 0, 3, -1, 1, 14.05),
])
sketch15.setExpression("Constraints[0]", "Params.sketch15_diameter")
pocket5 = body.newObject("PartDesign::Pocket", "Pocket004")
pocket5.Profile = sketch15
pocket5.setExpression("Length", "Params.pocket5_length")

sketch16 = body.newObject("Sketcher::SketchObject", "Sketch015")
sketch16.AttachmentSupport = (doc.getObject("XY_Plane"), [""])
sketch16.MapMode = "FlatFace"
sketch16.AttachmentOffset = App.Placement(V(0, 0, 10), App.Rotation())
sketch16.addGeometry([
    Part.LineSegment(V(135, -3.9, 0), V(135, 65, 0)),
    Part.LineSegment(V(135, 65, 0), V(110, 65, 0)),
    Part.LineSegment(V(110, 65, 0), V(110, -3.9, 0)),
    Part.LineSegment(V(110, -3.9, 0), V(135, -3.9, 0)),
    Part.LineSegment(V(-25, -3.9, 0), V(0, -3.9, 0)),
    Part.LineSegment(V(0, -3.9, 0), V(0, 65, 0)),
    Part.LineSegment(V(0, 65, 0), V(-25, 65, 0)),
    Part.LineSegment(V(-25, 65, 0), V(-25, -3.9, 0)),
], False)
sketch16.addConstraint([
    Sketcher.Constraint("Coincident", 0, 2, 1, 1),
    Sketcher.Constraint("Coincident", 1, 2, 2, 1),
    Sketcher.Constraint("Coincident", 2, 2, 3, 1),
    Sketcher.Constraint("Coincident", 3, 2, 0, 1),
    Sketcher.Constraint("Coincident", 4, 2, 5, 1),
    Sketcher.Constraint("Coincident", 5, 2, 6, 1),
    Sketcher.Constraint("Coincident", 6, 2, 7, 1),
    Sketcher.Constraint("Coincident", 7, 2, 4, 1),
    Sketcher.Constraint("Vertical", 0),
    Sketcher.Constraint("Horizontal", 1),
    Sketcher.Constraint("Vertical", 2),
    Sketcher.Constraint("Horizontal", 3),
    Sketcher.Constraint("Horizontal", 4),
    Sketcher.Constraint("Vertical", 5),
    Sketcher.Constraint("Horizontal", 6),
    Sketcher.Constraint("Vertical", 7),
    Sketcher.Constraint("PointOnObject", 4, 2, -2),
    Sketcher.Constraint("Horizontal", 3, 2, 4, 2),
    Sketcher.Constraint("Horizontal", 1, 2, 5, 2),
    Sketcher.Constraint("Equal", 3, 4),
    Sketcher.Constraint("DistanceX", 1, 2, 1, 1, 25.0),
    Sketcher.Constraint("DistanceY", 0, 1, 0, 2, 68.9),
    Sketcher.Constraint("DistanceX", -1, 1, 0, 2, 135.0),
    Sketcher.Constraint("DistanceY", -1, 1, 0, 2, 65.0),
])
sketch16.setExpression("Constraints[20]", "Params.sketch16_width")
sketch16.setExpression("Constraints[21]", "Params.sketch16_height")
pad11 = body.newObject("PartDesign::Pad", "Pad010")
pad11.Profile = sketch16
pad11.setExpression("Length", "Params.pad11_length")
pad11.Reversed = True

sketch17 = body.newObject("Sketcher::SketchObject", "Sketch016")
sketch17.AttachmentSupport = (doc.getObject("XY_Plane"), [""])
sketch17.MapMode = "FlatFace"
sketch17.addGeometry([
    Part.Circle(V(80, 37.5, 0), V(0, 0, 1), 22.5),
    Part.Circle(V(80, 37.5, 0), V(0, 0, 1), 4.5),
], False)
sketch17.addConstraint([
    Sketcher.Constraint("Coincident", 1, 3, 0, 3),
    Sketcher.Constraint("Diameter", 0, 45.0),
    Sketcher.Constraint("Diameter", 1, 9.0),
    Sketcher.Constraint("DistanceX", -1, 1, 0, 3, 80.0),
    Sketcher.Constraint("DistanceY", -1, 1, 0, 3, 37.5),
])
sketch17.setExpression("Constraints[1]", "Params.sketch17_diameter")
sketch17.setExpression("Constraints[2]", "Params.sketch17_diameter2")
pad12 = body.newObject("PartDesign::Pad", "Pad011")
pad12.Profile = sketch17
pad12.setExpression("Length", "Params.pad12_length")
pad12.Reversed = True

sketch18 = body.newObject("Sketcher::SketchObject", "Sketch017")
sketch18.AttachmentSupport = (doc.getObject("XY_Plane"), [""])
sketch18.MapMode = "FlatFace"
sketch18.AttachmentOffset = App.Placement(V(0, 0, -28.1), App.Rotation())
sketch18.addGeometry([
    Part.Circle(V(80, 37.5, 0), V(0, 0, 1), 11.5),
    Part.Circle(V(80, 37.5, 0), V(0, 0, 1), 4.5),
], False)
sketch18.addConstraint([
    Sketcher.Constraint("Coincident", 1, 3, 0, 3),
    Sketcher.Constraint("Diameter", 0, 23.0),
    Sketcher.Constraint("Diameter", 1, 9.0),
    Sketcher.Constraint("DistanceX", -1, 1, 0, 3, 80.0),
    Sketcher.Constraint("DistanceY", -1, 1, 0, 3, 37.5),
])
sketch18.setExpression("Constraints[1]", "Params.sketch18_diameter")
sketch18.setExpression("Constraints[2]", "Params.sketch18_diameter2")
pocket6 = body.newObject("PartDesign::Pocket", "Pocket005")
pocket6.Profile = sketch18
pocket6.setExpression("Length", "Params.pocket6_length")
pocket6.Reversed = True

sketch19 = body.newObject("Sketcher::SketchObject", "Sketch018")
sketch19.AttachmentSupport = (doc.getObject("XY_Plane"), [""])
sketch19.MapMode = "FlatFace"
sketch19.AttachmentOffset = App.Placement(V(0, 0, 10), App.Rotation())
sketch19.addGeometry([
    Part.Circle(V(80, 37.5, 0), V(0, 0, 1), 11.5),
    Part.Circle(V(80, 37.5, 0), V(0, 0, 1), 4.5),
], False)
sketch19.addConstraint([
    Sketcher.Constraint("Coincident", 1, 3, 0, 3),
    Sketcher.Constraint("Diameter", 0, 23.0),
    Sketcher.Constraint("Diameter", 1, 9.0),
    Sketcher.Constraint("DistanceX", -1, 1, 0, 3, 80.0),
    Sketcher.Constraint("DistanceY", -1, 1, 0, 3, 37.5),
])
sketch19.setExpression("Constraints[1]", "Params.sketch19_diameter")
sketch19.setExpression("Constraints[2]", "Params.sketch19_diameter2")
pocket7 = body.newObject("PartDesign::Pocket", "Pocket006")
pocket7.Profile = sketch19
pocket7.setExpression("Length", "Params.pocket7_length")
doc.recompute()

datumplane = body.newObject("PartDesign::Plane", "DatumPlane")
datumplane.AttachmentSupport = (doc.getObject("XY_Plane"), [""])
datumplane.MapMode = "FlatFace"
datumplane.AttachmentOffset = App.Placement(V(0, 0, -28.1), App.Rotation())
mirrored = body.newObject("PartDesign::Mirrored", "Mirrored")
mirrored.Originals = [pad1, pad2, pad3, pad4, pad5, pad6, pocket1, pocket2, pocket3, pocket4, pad7, pad8, pad9, pad10, pocket5, pad11, pad12, pocket6, pocket7]
mirrored.MirrorPlane = (datumplane, [""])
body.Tip = mirrored

sketch20 = body.newObject("Sketcher::SketchObject", "Sketch019")
sketch20.AttachmentSupport = (doc.getObject("XY_Plane"), [""])
sketch20.MapMode = "FlatFace"
sketch20.AttachmentOffset = App.Placement(V(0, 0, -28.1), App.Rotation())
sketch20.addGeometry([
    Part.LineSegment(V(135, 75, 0), V(135, -13.9, 0)),
    Part.LineSegment(V(135, -13.9, 0), V(-25, -13.9, 0)),
    Part.LineSegment(V(-25, -13.9, 0), V(-25, 75, 0)),
    Part.LineSegment(V(-25, 75, 0), V(135, 75, 0)),
], False)
sketch20.addConstraint([
    Sketcher.Constraint("Coincident", 0, 2, 1, 1),
    Sketcher.Constraint("Coincident", 1, 2, 2, 1),
    Sketcher.Constraint("Coincident", 2, 2, 3, 1),
    Sketcher.Constraint("Coincident", 3, 2, 0, 1),
    Sketcher.Constraint("Vertical", 0),
    Sketcher.Constraint("Horizontal", 1),
    Sketcher.Constraint("Vertical", 2),
    Sketcher.Constraint("Horizontal", 3),
    Sketcher.Constraint("DistanceX", 1, 2, 1, 1, 160.0),
    Sketcher.Constraint("DistanceY", 0, 2, 0, 1, 88.9),
    Sketcher.Constraint("DistanceX", -1, 1, 0, 2, 135.0),
    Sketcher.Constraint("DistanceY", -1, 1, 2, 2, 75.0),
])
sketch20.setExpression("Constraints[8]", "Params.sketch20_width")
sketch20.setExpression("Constraints[9]", "Params.sketch20_height")
pocket8 = body.newObject("PartDesign::Pocket", "Pocket007")
pocket8.Profile = sketch20
pocket8.Type = "ThroughAll"
pocket8.Reversed = True

doc.recompute()
